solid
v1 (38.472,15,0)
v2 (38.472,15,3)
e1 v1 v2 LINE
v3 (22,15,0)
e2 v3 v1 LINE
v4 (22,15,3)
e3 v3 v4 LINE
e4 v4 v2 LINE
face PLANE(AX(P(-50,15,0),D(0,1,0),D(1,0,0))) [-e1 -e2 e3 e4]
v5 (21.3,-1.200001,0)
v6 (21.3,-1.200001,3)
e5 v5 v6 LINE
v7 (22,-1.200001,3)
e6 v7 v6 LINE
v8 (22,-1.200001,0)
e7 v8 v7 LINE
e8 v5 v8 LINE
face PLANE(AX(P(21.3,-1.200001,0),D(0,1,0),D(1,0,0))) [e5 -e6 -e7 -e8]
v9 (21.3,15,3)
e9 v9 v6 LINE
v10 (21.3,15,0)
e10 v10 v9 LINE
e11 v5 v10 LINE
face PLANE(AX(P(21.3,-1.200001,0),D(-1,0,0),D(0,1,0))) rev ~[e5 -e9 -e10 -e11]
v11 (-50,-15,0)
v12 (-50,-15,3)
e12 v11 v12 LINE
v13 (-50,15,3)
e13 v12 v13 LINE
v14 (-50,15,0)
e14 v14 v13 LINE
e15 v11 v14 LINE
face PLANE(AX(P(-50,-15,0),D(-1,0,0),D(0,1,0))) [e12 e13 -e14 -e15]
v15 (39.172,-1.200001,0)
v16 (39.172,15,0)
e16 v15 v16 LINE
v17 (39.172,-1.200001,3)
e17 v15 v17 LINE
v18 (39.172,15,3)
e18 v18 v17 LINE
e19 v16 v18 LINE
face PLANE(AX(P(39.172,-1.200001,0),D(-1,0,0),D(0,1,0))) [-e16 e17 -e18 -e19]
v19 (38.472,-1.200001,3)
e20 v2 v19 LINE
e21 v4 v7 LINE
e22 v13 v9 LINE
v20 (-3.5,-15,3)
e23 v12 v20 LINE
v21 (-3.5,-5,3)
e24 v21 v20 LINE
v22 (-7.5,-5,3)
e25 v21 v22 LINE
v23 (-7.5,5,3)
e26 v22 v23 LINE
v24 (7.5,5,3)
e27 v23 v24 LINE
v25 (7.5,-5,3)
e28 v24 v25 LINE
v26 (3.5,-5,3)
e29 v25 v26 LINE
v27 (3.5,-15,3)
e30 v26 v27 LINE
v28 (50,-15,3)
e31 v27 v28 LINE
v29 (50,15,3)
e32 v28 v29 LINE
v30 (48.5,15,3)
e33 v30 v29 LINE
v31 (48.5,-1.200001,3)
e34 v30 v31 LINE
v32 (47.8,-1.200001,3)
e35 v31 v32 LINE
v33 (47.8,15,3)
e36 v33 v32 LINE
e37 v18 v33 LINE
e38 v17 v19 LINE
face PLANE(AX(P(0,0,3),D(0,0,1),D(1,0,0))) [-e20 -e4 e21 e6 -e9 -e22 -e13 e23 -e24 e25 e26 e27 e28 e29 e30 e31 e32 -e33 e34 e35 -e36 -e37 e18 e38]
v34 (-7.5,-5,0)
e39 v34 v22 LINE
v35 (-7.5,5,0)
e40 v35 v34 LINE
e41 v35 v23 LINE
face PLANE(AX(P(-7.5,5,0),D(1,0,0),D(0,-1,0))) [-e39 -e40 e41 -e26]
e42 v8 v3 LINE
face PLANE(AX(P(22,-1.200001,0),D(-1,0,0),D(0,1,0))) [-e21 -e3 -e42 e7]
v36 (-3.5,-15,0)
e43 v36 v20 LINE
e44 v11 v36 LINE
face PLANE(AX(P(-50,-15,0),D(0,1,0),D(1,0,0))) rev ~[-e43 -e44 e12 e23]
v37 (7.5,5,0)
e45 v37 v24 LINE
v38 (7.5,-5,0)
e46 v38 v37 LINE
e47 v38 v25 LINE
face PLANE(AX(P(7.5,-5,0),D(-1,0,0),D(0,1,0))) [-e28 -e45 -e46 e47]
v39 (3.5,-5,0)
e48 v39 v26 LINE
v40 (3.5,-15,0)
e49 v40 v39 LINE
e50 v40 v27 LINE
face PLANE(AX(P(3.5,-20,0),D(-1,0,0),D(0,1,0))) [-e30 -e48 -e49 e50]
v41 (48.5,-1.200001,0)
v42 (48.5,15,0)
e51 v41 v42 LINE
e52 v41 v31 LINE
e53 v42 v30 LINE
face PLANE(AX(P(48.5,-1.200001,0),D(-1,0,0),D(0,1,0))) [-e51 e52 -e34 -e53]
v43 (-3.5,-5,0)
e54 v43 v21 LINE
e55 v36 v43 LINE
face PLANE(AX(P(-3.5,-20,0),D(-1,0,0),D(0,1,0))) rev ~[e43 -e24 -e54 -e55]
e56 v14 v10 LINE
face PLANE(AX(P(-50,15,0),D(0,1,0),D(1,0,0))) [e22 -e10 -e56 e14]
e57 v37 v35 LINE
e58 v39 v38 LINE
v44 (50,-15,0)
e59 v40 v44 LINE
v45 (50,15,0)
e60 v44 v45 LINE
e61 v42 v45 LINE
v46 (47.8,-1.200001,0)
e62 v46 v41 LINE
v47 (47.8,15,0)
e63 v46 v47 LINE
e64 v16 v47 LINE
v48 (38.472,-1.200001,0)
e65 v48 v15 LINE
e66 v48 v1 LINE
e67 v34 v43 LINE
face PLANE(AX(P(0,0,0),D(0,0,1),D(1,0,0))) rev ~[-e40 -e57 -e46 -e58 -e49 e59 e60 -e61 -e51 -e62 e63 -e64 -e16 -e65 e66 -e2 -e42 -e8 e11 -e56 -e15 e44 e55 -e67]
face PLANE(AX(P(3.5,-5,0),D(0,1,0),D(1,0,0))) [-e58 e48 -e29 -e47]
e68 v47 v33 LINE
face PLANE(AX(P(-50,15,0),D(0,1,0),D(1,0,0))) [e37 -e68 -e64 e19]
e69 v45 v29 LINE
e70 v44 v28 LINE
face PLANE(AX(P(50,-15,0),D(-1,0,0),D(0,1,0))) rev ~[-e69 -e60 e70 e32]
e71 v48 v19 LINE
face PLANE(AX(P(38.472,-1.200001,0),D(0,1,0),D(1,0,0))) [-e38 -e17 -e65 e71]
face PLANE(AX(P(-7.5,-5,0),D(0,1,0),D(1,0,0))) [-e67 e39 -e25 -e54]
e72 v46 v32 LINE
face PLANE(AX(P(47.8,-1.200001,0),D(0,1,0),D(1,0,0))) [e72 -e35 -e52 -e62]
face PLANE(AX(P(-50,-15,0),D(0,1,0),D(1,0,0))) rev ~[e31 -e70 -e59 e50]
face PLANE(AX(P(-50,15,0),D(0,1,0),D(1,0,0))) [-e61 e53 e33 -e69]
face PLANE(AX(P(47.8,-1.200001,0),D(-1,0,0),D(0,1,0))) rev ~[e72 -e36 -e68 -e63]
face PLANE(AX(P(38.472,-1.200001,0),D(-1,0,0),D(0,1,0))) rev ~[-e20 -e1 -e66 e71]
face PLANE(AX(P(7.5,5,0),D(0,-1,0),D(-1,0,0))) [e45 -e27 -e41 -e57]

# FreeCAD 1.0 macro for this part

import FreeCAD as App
import Part
import Sketcher
from FreeCAD import Vector
Q = App.Units.Quantity


def add_polygon(sketch, points):
    """Adds a closed chain of lines whose ends are joined by coincident constraints."""
    first, n = sketch.GeometryCount, len(points)
    for a, b in zip(points, points[1:] + points[:1]):
        sketch.addGeometry(Part.LineSegment(App.Vector(*a, 0), App.Vector(*b, 0)), False)
    for i in range(n):
        sketch.addConstraint(Sketcher.Constraint("Coincident", first + i, 2, first + (i + 1) % n, 1))

doc = App.newDocument("Part")
body = doc.addObject("PartDesign::Body", "Body")

# Sketch on XY plane
sketch1 = body.newObject("Sketcher::SketchObject", "Sketch")
sketch1.AttachmentSupport = (doc.getObject("XY_Plane"), [""])
sketch1.MapMode = "FlatFace"
add_polygon(sketch1, [(-50, 15), (-50, -15), (50, -15), (50, 15)])  # lines 0-3
sketch1.addConstraint([
    Sketcher.Constraint("Vertical", 0),
    Sketcher.Constraint("Horizontal", 1),
    Sketcher.Constraint("Vertical", 2),
    Sketcher.Constraint("Horizontal", 3),
    Sketcher.Constraint("Symmetric", 0, 2, 2, 2, -1, 1),
    Sketcher.Constraint("DistanceX", 1, 1, 1, 2, Q("100 mm")),
    Sketcher.Constraint("DistanceY", 0, 2, 0, 1, Q("30 mm")),
])
pad1 = body.newObject("PartDesign::Pad", "Pad")
pad1.Profile = sketch1
pad1.Length = 3

# Sketch on XY plane
sketch2 = body.newObject("Sketcher::SketchObject", "Sketch001")
sketch2.AttachmentSupport = (doc.getObject("XY_Plane"), [""])
sketch2.MapMode = "FlatFace"
add_polygon(sketch2, [(7.5, -5), (7.5, 5), (-7.5, 5), (-7.5, -5), (-3.5, -5), (-3.5, -20), (3.5, -20), (3.5, -5)])  # lines 0-7
add_polygon(sketch2, [(21.3, 27.8), (21.3, -1.2), (22, -1.2), (22, 27.8)])  # lines 8-11
add_polygon(sketch2, [(47.8, 38.4), (47.8, -1.2), (48.5, -1.2), (48.5, 38.4)])  # lines 12-15
add_polygon(sketch2, [(38.5, 25.3), (38.5, -1.2), (39.2, -1.2), (39.2, 25.3)])  # lines 16-19
sketch2.addConstraint([
    Sketcher.Constraint("Vertical", 0),
    Sketcher.Constraint("Horizontal", 1),
    Sketcher.Constraint("Vertical", 2),
    Sketcher.Constraint("Horizontal", 3),
    Sketcher.Constraint("Vertical", 4),
    Sketcher.Constraint("Horizontal", 5),
    Sketcher.Constraint("Vertical", 6),
    Sketcher.Constraint("Horizontal", 7),
    Sketcher.Constraint("Vertical", 8),
    Sketcher.Constraint("Horizontal", 9),
    Sketcher.Constraint("Vertical", 10),
    Sketcher.Constraint("Horizontal", 11),
    Sketcher.Constraint("Vertical", 12),
    Sketcher.Constraint("Horizontal", 13),
    Sketcher.Constraint("Vertical", 14),
    Sketcher.Constraint("Horizontal", 15),
    Sketcher.Constraint("Vertical", 16),
    Sketcher.Constraint("Horizontal", 17),
    Sketcher.Constraint("Vertical", 18),
    Sketcher.Constraint("Horizontal", 19),
    Sketcher.Constraint("Symmetric", 0, 2, 2, 2, -1, 1),
    Sketcher.Constraint("Symmetric", 3, 2, 6, 2, -2),
    Sketcher.Constraint("Horizontal", 9, 2, 12, 2),
    Sketcher.Constraint("Horizontal", 13, 2, 16, 2),
    Sketcher.Constraint("Equal", 11, 13),
    Sketcher.Constraint("Equal", 15, 17),
    Sketcher.Constraint("Equal", 1, 4),
    Sketcher.Constraint("DistanceX", 1, 2, 1, 1, Q("15 mm")),
    Sketcher.Constraint("DistanceX", 3, 1, 3, 2, Q("4 mm")),
    Sketcher.Constraint("DistanceY", 0, 1, 0, 2, Q("10 mm")),
    Sketcher.Constraint("DistanceX", 9, 1, 9, 2, Q("0.7 mm")),
    Sketcher.Constraint("DistanceX", -1, 1, 9, 2, Q("22 mm")),
    Sketcher.Constraint("DistanceY", 8, 2, -1, 1, Q("1.200001 mm")),
    Sketcher.Constraint("DistanceX", -1, 1, 12, 2, Q("47.8 mm")),
    Sketcher.Constraint("DistanceX", -1, 1, 16, 2, Q("38.472 mm")),
    Sketcher.Constraint("DistanceY", 8, 2, 8, 1, Q("28.988547 mm")),
    Sketcher.Constraint("DistanceY", 12, 2, 12, 1, Q("39.616307 mm")),
    Sketcher.Constraint("DistanceY", 16, 2, 16, 1, Q("26.504163 mm")),
])
pocket1 = body.newObject("PartDesign::Pocket", "Pocket")
pocket1.Profile = sketch2
pocket1.Length = 4
pocket1.Reversed = True

doc.recompute()
